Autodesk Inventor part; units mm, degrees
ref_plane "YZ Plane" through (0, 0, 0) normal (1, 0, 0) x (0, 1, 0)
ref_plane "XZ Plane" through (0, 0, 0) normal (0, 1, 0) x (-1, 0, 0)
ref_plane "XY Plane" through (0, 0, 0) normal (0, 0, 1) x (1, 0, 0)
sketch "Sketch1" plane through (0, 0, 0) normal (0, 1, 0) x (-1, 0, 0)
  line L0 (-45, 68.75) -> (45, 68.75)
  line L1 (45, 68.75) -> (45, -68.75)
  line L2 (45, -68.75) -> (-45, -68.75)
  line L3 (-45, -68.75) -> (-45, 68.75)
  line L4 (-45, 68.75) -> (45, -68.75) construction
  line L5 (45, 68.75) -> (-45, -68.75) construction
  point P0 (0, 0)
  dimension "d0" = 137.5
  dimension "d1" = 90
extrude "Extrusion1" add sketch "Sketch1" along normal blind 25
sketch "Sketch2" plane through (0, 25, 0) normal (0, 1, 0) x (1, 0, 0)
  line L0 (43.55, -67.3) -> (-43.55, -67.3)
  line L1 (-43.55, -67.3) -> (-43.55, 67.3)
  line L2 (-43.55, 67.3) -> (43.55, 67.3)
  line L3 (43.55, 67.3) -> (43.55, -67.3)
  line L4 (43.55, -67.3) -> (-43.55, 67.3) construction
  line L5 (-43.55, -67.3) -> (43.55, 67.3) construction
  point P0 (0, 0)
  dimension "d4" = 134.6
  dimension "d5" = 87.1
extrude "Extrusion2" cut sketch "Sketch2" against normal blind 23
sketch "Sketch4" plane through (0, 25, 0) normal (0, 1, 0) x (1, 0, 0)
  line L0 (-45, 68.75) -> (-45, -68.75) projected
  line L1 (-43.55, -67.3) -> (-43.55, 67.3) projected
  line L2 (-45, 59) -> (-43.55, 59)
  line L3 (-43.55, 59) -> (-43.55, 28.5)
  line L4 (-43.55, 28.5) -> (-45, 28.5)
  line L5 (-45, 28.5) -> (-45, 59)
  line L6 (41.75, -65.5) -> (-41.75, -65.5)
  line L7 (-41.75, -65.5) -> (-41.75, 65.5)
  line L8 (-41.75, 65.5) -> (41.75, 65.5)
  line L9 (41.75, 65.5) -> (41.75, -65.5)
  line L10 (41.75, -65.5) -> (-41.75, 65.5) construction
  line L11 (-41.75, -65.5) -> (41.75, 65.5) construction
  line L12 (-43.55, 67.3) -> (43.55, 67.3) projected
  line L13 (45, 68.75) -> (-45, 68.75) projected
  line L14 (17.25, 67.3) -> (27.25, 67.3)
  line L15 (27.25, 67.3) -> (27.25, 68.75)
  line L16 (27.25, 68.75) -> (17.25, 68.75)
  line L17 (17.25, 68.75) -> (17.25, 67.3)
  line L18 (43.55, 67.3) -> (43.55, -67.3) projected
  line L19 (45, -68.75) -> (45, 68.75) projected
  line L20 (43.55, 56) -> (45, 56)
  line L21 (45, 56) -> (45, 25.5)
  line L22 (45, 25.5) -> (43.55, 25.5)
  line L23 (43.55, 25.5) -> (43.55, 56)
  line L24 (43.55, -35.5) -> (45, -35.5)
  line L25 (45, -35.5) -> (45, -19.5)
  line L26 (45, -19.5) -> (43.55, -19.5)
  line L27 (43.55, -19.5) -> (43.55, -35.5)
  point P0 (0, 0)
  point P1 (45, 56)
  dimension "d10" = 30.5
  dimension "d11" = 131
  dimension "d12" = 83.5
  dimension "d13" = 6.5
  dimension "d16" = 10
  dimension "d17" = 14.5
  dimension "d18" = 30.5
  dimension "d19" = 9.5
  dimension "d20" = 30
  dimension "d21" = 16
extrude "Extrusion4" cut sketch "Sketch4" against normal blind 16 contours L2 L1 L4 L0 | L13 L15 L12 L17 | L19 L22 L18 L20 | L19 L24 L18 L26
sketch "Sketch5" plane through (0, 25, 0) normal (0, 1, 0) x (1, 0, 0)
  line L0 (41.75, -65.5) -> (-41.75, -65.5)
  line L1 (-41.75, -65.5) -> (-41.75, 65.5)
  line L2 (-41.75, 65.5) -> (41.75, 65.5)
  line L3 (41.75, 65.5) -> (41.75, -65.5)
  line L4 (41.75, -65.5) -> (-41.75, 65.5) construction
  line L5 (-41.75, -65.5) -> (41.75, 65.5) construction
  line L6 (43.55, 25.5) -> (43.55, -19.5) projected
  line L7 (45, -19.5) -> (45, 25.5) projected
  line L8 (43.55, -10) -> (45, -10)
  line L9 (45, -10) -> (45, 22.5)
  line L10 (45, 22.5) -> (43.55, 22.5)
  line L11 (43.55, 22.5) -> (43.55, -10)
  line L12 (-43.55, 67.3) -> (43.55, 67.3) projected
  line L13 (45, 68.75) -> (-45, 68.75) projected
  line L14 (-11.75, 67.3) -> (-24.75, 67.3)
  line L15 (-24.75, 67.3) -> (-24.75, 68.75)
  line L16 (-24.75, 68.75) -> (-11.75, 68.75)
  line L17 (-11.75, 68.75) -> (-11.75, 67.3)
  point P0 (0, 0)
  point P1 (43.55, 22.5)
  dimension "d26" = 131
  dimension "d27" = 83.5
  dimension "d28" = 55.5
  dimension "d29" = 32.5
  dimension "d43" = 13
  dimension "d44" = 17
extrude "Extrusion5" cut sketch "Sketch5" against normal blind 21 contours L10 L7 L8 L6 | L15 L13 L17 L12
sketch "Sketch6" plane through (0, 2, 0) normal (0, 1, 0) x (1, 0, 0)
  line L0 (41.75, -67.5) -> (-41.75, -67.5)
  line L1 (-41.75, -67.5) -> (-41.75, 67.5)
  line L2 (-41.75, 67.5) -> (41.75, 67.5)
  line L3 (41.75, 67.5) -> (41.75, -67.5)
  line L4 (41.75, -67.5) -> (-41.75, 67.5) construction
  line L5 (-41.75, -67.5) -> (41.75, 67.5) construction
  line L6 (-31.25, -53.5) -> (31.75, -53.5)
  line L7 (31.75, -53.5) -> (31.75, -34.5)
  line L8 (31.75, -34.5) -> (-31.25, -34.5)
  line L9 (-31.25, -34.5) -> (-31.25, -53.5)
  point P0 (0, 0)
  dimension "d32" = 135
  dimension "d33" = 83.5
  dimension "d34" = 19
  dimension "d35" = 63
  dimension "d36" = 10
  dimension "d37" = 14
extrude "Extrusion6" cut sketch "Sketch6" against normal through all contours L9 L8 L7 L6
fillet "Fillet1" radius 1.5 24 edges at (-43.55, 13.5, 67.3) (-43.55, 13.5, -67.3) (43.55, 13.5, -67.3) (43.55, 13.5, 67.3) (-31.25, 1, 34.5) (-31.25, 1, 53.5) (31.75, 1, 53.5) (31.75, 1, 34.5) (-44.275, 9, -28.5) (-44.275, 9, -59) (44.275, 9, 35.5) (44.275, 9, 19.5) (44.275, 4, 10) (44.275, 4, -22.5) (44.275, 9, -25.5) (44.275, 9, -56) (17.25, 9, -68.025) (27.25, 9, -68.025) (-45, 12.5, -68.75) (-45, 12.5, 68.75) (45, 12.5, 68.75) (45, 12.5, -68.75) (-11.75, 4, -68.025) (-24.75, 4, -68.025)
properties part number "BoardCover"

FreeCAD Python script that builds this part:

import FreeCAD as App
import Part
import Sketcher

V = App.Vector
Q = App.Units.Quantity


def edges_at(feature, points):
    """Names of the edges that pass closest to the given points."""
    edges = feature.Shape.Edges
    near = lambda p: min(range(len(edges)), key=lambda i: edges[i].distToShape(Part.Vertex(*p))[0])
    return sorted({f"Edge{near(p) + 1}" for p in points})

doc = App.newDocument("Part")
body = doc.addObject("PartDesign::Body", "Body")

# Sketch on XZ plane
sketch1 = doc.addObject("Sketcher::SketchObject", "Sketch")
body.addObject(sketch1)
sketch1.AttachmentSupport = (doc.XZ_Plane, [""])
sketch1.MapMode = "FlatFace"
sketch1.addGeometry(Part.LineSegment(V(-45, 69, 0), V(45, 69, 0)), False)
sketch1.addGeometry(Part.LineSegment(V(45, 69, 0), V(45, -69, 0)), False)
sketch1.addGeometry(Part.LineSegment(V(45, -69, 0), V(-45, -69, 0)), False)
sketch1.addGeometry(Part.LineSegment(V(-45, -69, 0), V(-45, 69, 0)), False)
sketch1.addConstraint(Sketcher.Constraint("Coincident", 0, 2, 1, 1))
sketch1.addConstraint(Sketcher.Constraint("Coincident", 1, 2, 2, 1))
sketch1.addConstraint(Sketcher.Constraint("Coincident", 2, 2, 3, 1))
sketch1.addConstraint(Sketcher.Constraint("Coincident", 3, 2, 0, 1))
sketch1.addConstraint(Sketcher.Constraint("Horizontal", 0))
sketch1.addConstraint(Sketcher.Constraint("Vertical", 1))
sketch1.addConstraint(Sketcher.Constraint("Horizontal", 2))
sketch1.addConstraint(Sketcher.Constraint("Vertical", 3))
sketch1.addConstraint(Sketcher.Constraint("Symmetric", 0, 2, 2, 2, -1, 1))
sketch1.addConstraint(Sketcher.Constraint("DistanceX", 0, 1, 0, 2, Q("90 mm")))
sketch1.addConstraint(Sketcher.Constraint("DistanceY", 1, 2, 1, 1, Q("137.5 mm")))
pad1 = doc.addObject("PartDesign::Pad", "Pad")
body.addObject(pad1)
pad1.Profile = sketch1
pad1.Length = 25
pad1.Reversed = True

# Sketch on XZ plane
sketch2 = doc.addObject("Sketcher::SketchObject", "Sketch001")
body.addObject(sketch2)
sketch2.AttachmentSupport = (doc.XZ_Plane, [""])
sketch2.MapMode = "FlatFace"
sketch2.AttachmentOffset = App.Placement(V(0, 0, -25), App.Rotation())
sketch2.addGeometry(Part.LineSegment(V(-44, 67, 0), V(44, 67, 0)), False)
sketch2.addGeometry(Part.LineSegment(V(44, 67, 0), V(44, -67, 0)), False)
sketch2.addGeometry(Part.LineSegment(V(44, -67, 0), V(-44, -67, 0)), False)
sketch2.addGeometry(Part.LineSegment(V(-44, -67, 0), V(-44, 67, 0)), False)
sketch2.addConstraint(Sketcher.Constraint("Coincident", 0, 2, 1, 1))
sketch2.addConstraint(Sketcher.Constraint("Coincident", 1, 2, 2, 1))
sketch2.addConstraint(Sketcher.Constraint("Coincident", 2, 2, 3, 1))
sketch2.addConstraint(Sketcher.Constraint("Coincident", 3, 2, 0, 1))
sketch2.addConstraint(Sketcher.Constraint("Horizontal", 0))
sketch2.addConstraint(Sketcher.Constraint("Vertical", 1))
sketch2.addConstraint(Sketcher.Constraint("Horizontal", 2))
sketch2.addConstraint(Sketcher.Constraint("Vertical", 3))
sketch2.addConstraint(Sketcher.Constraint("Symmetric", 0, 2, 2, 2, -1, 1))
sketch2.addConstraint(Sketcher.Constraint("DistanceX", 0, 1, 0, 2, Q("87.1 mm")))
sketch2.addConstraint(Sketcher.Constraint("DistanceY", 1, 2, 1, 1, Q("134.6 mm")))
pocket1 = doc.addObject("PartDesign::Pocket", "Pocket")
body.addObject(pocket1)
pocket1.Profile = sketch2
pocket1.Length = 23
pocket1.Reversed = True

# Sketch on XZ plane
sketch3 = doc.addObject("Sketcher::SketchObject", "Sketch002")
body.addObject(sketch3)
sketch3.AttachmentSupport = (doc.XZ_Plane, [""])
sketch3.MapMode = "FlatFace"
sketch3.AttachmentOffset = App.Placement(V(0, 0, -25), App.Rotation())
sketch3.addGeometry(Part.LineSegment(V(-43.5, -59, 0), V(-45, -59, 0)), False)
sketch3.addGeometry(Part.LineSegment(V(-45, -59, 0), V(-45, -28.5, 0)), False)
sketch3.addGeometry(Part.LineSegment(V(-45, -28.5, 0), V(-43.5, -28.5, 0)), False)
sketch3.addGeometry(Part.LineSegment(V(-43.5, -28.5, 0), V(-43.5, -59, 0)), False)
sketch3.addGeometry(Part.LineSegment(V(27.2, -68.8, 0), V(17.2, -68.8, 0)), False)
sketch3.addGeometry(Part.LineSegment(V(17.2, -68.8, 0), V(17.2, -67.3, 0)), False)
sketch3.addGeometry(Part.LineSegment(V(17.2, -67.3, 0), V(27.2, -67.3, 0)), False)
sketch3.addGeometry(Part.LineSegment(V(27.2, -67.3, 0), V(27.2, -68.8, 0)), False)
sketch3.addGeometry(Part.LineSegment(V(45, -25.5, 0), V(45, -56, 0)), False)
sketch3.addGeometry(Part.LineSegment(V(45, -56, 0), V(43.5, -56, 0)), False)
sketch3.addGeometry(Part.LineSegment(V(43.5, -56, 0), V(43.5, -25.5, 0)), False)
sketch3.addGeometry(Part.LineSegment(V(43.5, -25.5, 0), V(45, -25.5, 0)), False)
sketch3.addGeometry(Part.LineSegment(V(45, 35.5, 0), V(45, 19.5, 0)), False)
sketch3.addGeometry(Part.LineSegment(V(45, 19.5, 0), V(43.5, 19.5, 0)), False)
sketch3.addGeometry(Part.LineSegment(V(43.5, 19.5, 0), V(43.5, 35.5, 0)), False)
sketch3.addGeometry(Part.LineSegment(V(43.5, 35.5, 0), V(45, 35.5, 0)), False)
sketch3.addConstraint(Sketcher.Constraint("Coincident", 0, 2, 1, 1))
sketch3.addConstraint(Sketcher.Constraint("Coincident", 1, 2, 2, 1))
sketch3.addConstraint(Sketcher.Constraint("Coincident", 2, 2, 3, 1))
sketch3.addConstraint(Sketcher.Constraint("Coincident", 3, 2, 0, 1))
sketch3.addConstraint(Sketcher.Constraint("Coincident", 4, 2, 5, 1))
sketch3.addConstraint(Sketcher.Constraint("Coincident", 5, 2, 6, 1))
sketch3.addConstraint(Sketcher.Constraint("Coincident", 6, 2, 7, 1))
sketch3.addConstraint(Sketcher.Constraint("Coincident", 7, 2, 4, 1))
sketch3.addConstraint(Sketcher.Constraint("Coincident", 8, 2, 9, 1))
sketch3.addConstraint(Sketcher.Constraint("Coincident", 9, 2, 10, 1))
sketch3.addConstraint(Sketcher.Constraint("Coincident", 10, 2, 11, 1))
sketch3.addConstraint(Sketcher.Constraint("Coincident", 11, 2, 8, 1))
sketch3.addConstraint(Sketcher.Constraint("Coincident", 12, 2, 13, 1))
sketch3.addConstraint(Sketcher.Constraint("Coincident", 13, 2, 14, 1))
sketch3.addConstraint(Sketcher.Constraint("Coincident", 14, 2, 15, 1))
sketch3.addConstraint(Sketcher.Constraint("Coincident", 15, 2, 12, 1))
sketch3.addConstraint(Sketcher.Constraint("Horizontal", 0))
sketch3.addConstraint(Sketcher.Constraint("Vertical", 1))
sketch3.addConstraint(Sketcher.Constraint("Horizontal", 2))
sketch3.addConstraint(Sketcher.Constraint("Vertical", 3))
sketch3.addConstraint(Sketcher.Constraint("Horizontal", 4))
sketch3.addConstraint(Sketcher.Constraint("Vertical", 5))
sketch3.addConstraint(Sketcher.Constraint("Horizontal", 6))
sketch3.addConstraint(Sketcher.Constraint("Vertical", 7))
sketch3.addConstraint(Sketcher.Constraint("Vertical", 8))
sketch3.addConstraint(Sketcher.Constraint("Horizontal", 9))
sketch3.addConstraint(Sketcher.Constraint("Vertical", 10))
sketch3.addConstraint(Sketcher.Constraint("Horizontal", 11))
sketch3.addConstraint(Sketcher.Constraint("Vertical", 12))
sketch3.addConstraint(Sketcher.Constraint("Horizontal", 13))
sketch3.addConstraint(Sketcher.Constraint("Vertical", 14))
sketch3.addConstraint(Sketcher.Constraint("Horizontal", 15))
sketch3.addConstraint(Sketcher.Constraint("Vertical", 11, 2, 12, 2))
sketch3.addConstraint(Sketcher.Constraint("Vertical", 10, 2, 13, 2))
sketch3.addConstraint(Sketcher.Constraint("Equal", 2, 9))
sketch3.addConstraint(Sketcher.Constraint("Equal", 15, 5))
sketch3.addConstraint(Sketcher.Constraint("Equal", 3, 8))
sketch3.addConstraint(Sketcher.Constraint("DistanceX", 4, 2, 4, 1, Q("10 mm")))
sketch3.addConstraint(Sketcher.Constraint("DistanceY", 12, 2, 12, 1, Q("16 mm")))
sketch3.addConstraint(Sketcher.Constraint("DistanceY", 1, 1, 1, 2, Q("30.5 mm")))
sketch3.addConstraint(Sketcher.Constraint("DistanceX", 0, 2, -1, 1, Q("45 mm")))
sketch3.addConstraint(Sketcher.Constraint("DistanceY", 0, 2, -1, 1, Q("59 mm")))
sketch3.addConstraint(Sketcher.Constraint("DistanceX", -1, 1, 8, 2, Q("45 mm")))
sketch3.addConstraint(Sketcher.Constraint("DistanceY", 8, 2, -1, 1, Q("56 mm")))
sketch3.addConstraint(Sketcher.Constraint("DistanceY", 11, 2, 12, 2, Q("45 mm")))
sketch3.addConstraint(Sketcher.Constraint("DistanceX", 0, 2, 0, 1, Q("1.45 mm")))
sketch3.addConstraint(Sketcher.Constraint("DistanceY", 5, 2, -1, 1, Q("67.3 mm")))
sketch3.addConstraint(Sketcher.Constraint("DistanceX", 3, 2, 4, 2, Q("60.8 mm")))
pocket2 = doc.addObject("PartDesign::Pocket", "Pocket001")
body.addObject(pocket2)
pocket2.Profile = sketch3
pocket2.Length = 16
pocket2.Reversed = True

# Sketch on XZ plane
sketch4 = doc.addObject("Sketcher::SketchObject", "Sketch003")
body.addObject(sketch4)
sketch4.AttachmentSupport = (doc.XZ_Plane, [""])
sketch4.MapMode = "FlatFace"
sketch4.AttachmentOffset = App.Placement(V(0, 0, -25), App.Rotation())
sketch4.addGeometry(Part.LineSegment(V(45, -22.5, 0), V(43.5, -22.5, 0)), False)
sketch4.addGeometry(Part.LineSegment(V(43.5, -22.5, 0), V(43.5, 10, 0)), False)
sketch4.addGeometry(Part.LineSegment(V(43.5, 10, 0), V(45, 10, 0)), False)
sketch4.addGeometry(Part.LineSegment(V(45, 10, 0), V(45, -22.5, 0)), False)
sketch4.addGeometry(Part.LineSegment(V(-24.8, -68.8, 0), V(-24.8, -67.3, 0)), False)
sketch4.addGeometry(Part.LineSegment(V(-24.8, -67.3, 0), V(-11.8, -67.3, 0)), False)
sketch4.addGeometry(Part.LineSegment(V(-11.8, -67.3, 0), V(-11.8, -68.8, 0)), False)
sketch4.addGeometry(Part.LineSegment(V(-11.8, -68.8, 0), V(-24.8, -68.8, 0)), False)
sketch4.addConstraint(Sketcher.Constraint("Coincident", 0, 2, 1, 1))
sketch4.addConstraint(Sketcher.Constraint("Coincident", 1, 2, 2, 1))
sketch4.addConstraint(Sketcher.Constraint("Coincident", 2, 2, 3, 1))
sketch4.addConstraint(Sketcher.Constraint("Coincident", 3, 2, 0, 1))
sketch4.addConstraint(Sketcher.Constraint("Coincident", 4, 2, 5, 1))
sketch4.addConstraint(Sketcher.Constraint("Coincident", 5, 2, 6, 1))
sketch4.addConstraint(Sketcher.Constraint("Coincident", 6, 2, 7, 1))
sketch4.addConstraint(Sketcher.Constraint("Coincident", 7, 2, 4, 1))
sketch4.addConstraint(Sketcher.Constraint("Horizontal", 0))
sketch4.addConstraint(Sketcher.Constraint("Vertical", 1))
sketch4.addConstraint(Sketcher.Constraint("Horizontal", 2))
sketch4.addConstraint(Sketcher.Constraint("Vertical", 3))
sketch4.addConstraint(Sketcher.Constraint("Vertical", 4))
sketch4.addConstraint(Sketcher.Constraint("Horizontal", 5))
sketch4.addConstraint(Sketcher.Constraint("Vertical", 6))
sketch4.addConstraint(Sketcher.Constraint("Horizontal", 7))
sketch4.addConstraint(Sketcher.Constraint("Equal", 2, 4))
sketch4.addConstraint(Sketcher.Constraint("DistanceX", 5, 1, 5, 2, Q("13 mm")))
sketch4.addConstraint(Sketcher.Constraint("DistanceY", 1, 1, 1, 2, Q("32.5 mm")))
sketch4.addConstraint(Sketcher.Constraint("DistanceY", -1, 1, 1, 2, Q("10 mm")))
sketch4.addConstraint(Sketcher.Constraint("DistanceX", -1, 1, 2, 2, Q("45 mm")))
sketch4.addConstraint(Sketcher.Constraint("DistanceX", 0, 2, 0, 1, Q("1.45 mm")))
sketch4.addConstraint(Sketcher.Constraint("DistanceY", 4, 2, -1, 1, Q("67.3 mm")))
sketch4.addConstraint(Sketcher.Constraint("DistanceX", 4, 2, 0, 2, Q("68.3 mm")))
pocket3 = doc.addObject("PartDesign::Pocket", "Pocket002")
body.addObject(pocket3)
pocket3.Profile = sketch4
pocket3.Length = 21
pocket3.Reversed = True

# Sketch on XZ plane
sketch5 = doc.addObject("Sketcher::SketchObject", "Sketch004")
body.addObject(sketch5)
sketch5.AttachmentSupport = (doc.XZ_Plane, [""])
sketch5.MapMode = "FlatFace"
sketch5.AttachmentOffset = App.Placement(V(0, 0, -2), App.Rotation())
sketch5.addGeometry(Part.LineSegment(V(-31, 34, 0), V(-31, 54, 0)), False)
sketch5.addGeometry(Part.LineSegment(V(-31, 54, 0), V(32, 54, 0)), False)
sketch5.addGeometry(Part.LineSegment(V(32, 54, 0), V(32, 34, 0)), False)
sketch5.addGeometry(Part.LineSegment(V(32, 34, 0), V(-31, 34, 0)), False)
sketch5.addConstraint(Sketcher.Constraint("Coincident", 0, 2, 1, 1))
sketch5.addConstraint(Sketcher.Constraint("Coincident", 1, 2, 2, 1))
sketch5.addConstraint(Sketcher.Constraint("Coincident", 2, 2, 3, 1))
sketch5.addConstraint(Sketcher.Constraint("Coincident", 3, 2, 0, 1))
sketch5.addConstraint(Sketcher.Constraint("Vertical", 0))
sketch5.addConstraint(Sketcher.Constraint("Horizontal", 1))
sketch5.addConstraint(Sketcher.Constraint("Vertical", 2))
sketch5.addConstraint(Sketcher.Constraint("Horizontal", 3))
sketch5.addConstraint(Sketcher.Constraint("DistanceX", 1, 1, 1, 2, Q("63 mm")))
sketch5.addConstraint(Sketcher.Constraint("DistanceY", 0, 1, 0, 2, Q("19 mm")))
sketch5.addConstraint(Sketcher.Constraint("DistanceY", -1, 1, 0, 2, Q("53.5 mm")))
sketch5.addConstraint(Sketcher.Constraint("DistanceX", 0, 2, -1, 1, Q("31.25 mm")))
pocket4 = doc.addObject("PartDesign::Pocket", "Pocket003")
body.addObject(pocket4)
pocket4.Profile = sketch5
pocket4.Type = "ThroughAll"
pocket4.Reversed = True
doc.recompute()

fillet = doc.addObject("PartDesign::Fillet", "Fillet")
body.addObject(fillet)
fillet.Base = (pocket4, edges_at(pocket4, [
    (-43.55, 13.5, 67.3),
    (-43.55, 13.5, -67.3),
    (43.55, 13.5, -67.3),
    (43.55, 13.5, 67.3),
    (-31.25, 1, 34.5),
    (-31.25, 1, 53.5),
    (31.75, 1, 53.5),
    (31.75, 1, 34.5),
    (-44.275, 9, -28.5),
    (-44.275, 9, -59),
    (44.275, 9, 35.5),
    (44.275, 9, 19.5),
    (44.275, 4, 10),
    (44.275, 4, -22.5),
    (44.275, 9, -25.5),
    (44.275, 9, -56),
    (17.25, 9, -68.025),
    (27.25, 9, -68.025),
    (-45, 12.5, -68.75),
    (-45, 12.5, 68.75),
    (45, 12.5, 68.75),
    (45, 12.5, -68.75),
    (-11.75, 4, -68.025),
    (-24.75, 4, -68.025),
]))
fillet.Radius = 1.5

doc.recompute()
